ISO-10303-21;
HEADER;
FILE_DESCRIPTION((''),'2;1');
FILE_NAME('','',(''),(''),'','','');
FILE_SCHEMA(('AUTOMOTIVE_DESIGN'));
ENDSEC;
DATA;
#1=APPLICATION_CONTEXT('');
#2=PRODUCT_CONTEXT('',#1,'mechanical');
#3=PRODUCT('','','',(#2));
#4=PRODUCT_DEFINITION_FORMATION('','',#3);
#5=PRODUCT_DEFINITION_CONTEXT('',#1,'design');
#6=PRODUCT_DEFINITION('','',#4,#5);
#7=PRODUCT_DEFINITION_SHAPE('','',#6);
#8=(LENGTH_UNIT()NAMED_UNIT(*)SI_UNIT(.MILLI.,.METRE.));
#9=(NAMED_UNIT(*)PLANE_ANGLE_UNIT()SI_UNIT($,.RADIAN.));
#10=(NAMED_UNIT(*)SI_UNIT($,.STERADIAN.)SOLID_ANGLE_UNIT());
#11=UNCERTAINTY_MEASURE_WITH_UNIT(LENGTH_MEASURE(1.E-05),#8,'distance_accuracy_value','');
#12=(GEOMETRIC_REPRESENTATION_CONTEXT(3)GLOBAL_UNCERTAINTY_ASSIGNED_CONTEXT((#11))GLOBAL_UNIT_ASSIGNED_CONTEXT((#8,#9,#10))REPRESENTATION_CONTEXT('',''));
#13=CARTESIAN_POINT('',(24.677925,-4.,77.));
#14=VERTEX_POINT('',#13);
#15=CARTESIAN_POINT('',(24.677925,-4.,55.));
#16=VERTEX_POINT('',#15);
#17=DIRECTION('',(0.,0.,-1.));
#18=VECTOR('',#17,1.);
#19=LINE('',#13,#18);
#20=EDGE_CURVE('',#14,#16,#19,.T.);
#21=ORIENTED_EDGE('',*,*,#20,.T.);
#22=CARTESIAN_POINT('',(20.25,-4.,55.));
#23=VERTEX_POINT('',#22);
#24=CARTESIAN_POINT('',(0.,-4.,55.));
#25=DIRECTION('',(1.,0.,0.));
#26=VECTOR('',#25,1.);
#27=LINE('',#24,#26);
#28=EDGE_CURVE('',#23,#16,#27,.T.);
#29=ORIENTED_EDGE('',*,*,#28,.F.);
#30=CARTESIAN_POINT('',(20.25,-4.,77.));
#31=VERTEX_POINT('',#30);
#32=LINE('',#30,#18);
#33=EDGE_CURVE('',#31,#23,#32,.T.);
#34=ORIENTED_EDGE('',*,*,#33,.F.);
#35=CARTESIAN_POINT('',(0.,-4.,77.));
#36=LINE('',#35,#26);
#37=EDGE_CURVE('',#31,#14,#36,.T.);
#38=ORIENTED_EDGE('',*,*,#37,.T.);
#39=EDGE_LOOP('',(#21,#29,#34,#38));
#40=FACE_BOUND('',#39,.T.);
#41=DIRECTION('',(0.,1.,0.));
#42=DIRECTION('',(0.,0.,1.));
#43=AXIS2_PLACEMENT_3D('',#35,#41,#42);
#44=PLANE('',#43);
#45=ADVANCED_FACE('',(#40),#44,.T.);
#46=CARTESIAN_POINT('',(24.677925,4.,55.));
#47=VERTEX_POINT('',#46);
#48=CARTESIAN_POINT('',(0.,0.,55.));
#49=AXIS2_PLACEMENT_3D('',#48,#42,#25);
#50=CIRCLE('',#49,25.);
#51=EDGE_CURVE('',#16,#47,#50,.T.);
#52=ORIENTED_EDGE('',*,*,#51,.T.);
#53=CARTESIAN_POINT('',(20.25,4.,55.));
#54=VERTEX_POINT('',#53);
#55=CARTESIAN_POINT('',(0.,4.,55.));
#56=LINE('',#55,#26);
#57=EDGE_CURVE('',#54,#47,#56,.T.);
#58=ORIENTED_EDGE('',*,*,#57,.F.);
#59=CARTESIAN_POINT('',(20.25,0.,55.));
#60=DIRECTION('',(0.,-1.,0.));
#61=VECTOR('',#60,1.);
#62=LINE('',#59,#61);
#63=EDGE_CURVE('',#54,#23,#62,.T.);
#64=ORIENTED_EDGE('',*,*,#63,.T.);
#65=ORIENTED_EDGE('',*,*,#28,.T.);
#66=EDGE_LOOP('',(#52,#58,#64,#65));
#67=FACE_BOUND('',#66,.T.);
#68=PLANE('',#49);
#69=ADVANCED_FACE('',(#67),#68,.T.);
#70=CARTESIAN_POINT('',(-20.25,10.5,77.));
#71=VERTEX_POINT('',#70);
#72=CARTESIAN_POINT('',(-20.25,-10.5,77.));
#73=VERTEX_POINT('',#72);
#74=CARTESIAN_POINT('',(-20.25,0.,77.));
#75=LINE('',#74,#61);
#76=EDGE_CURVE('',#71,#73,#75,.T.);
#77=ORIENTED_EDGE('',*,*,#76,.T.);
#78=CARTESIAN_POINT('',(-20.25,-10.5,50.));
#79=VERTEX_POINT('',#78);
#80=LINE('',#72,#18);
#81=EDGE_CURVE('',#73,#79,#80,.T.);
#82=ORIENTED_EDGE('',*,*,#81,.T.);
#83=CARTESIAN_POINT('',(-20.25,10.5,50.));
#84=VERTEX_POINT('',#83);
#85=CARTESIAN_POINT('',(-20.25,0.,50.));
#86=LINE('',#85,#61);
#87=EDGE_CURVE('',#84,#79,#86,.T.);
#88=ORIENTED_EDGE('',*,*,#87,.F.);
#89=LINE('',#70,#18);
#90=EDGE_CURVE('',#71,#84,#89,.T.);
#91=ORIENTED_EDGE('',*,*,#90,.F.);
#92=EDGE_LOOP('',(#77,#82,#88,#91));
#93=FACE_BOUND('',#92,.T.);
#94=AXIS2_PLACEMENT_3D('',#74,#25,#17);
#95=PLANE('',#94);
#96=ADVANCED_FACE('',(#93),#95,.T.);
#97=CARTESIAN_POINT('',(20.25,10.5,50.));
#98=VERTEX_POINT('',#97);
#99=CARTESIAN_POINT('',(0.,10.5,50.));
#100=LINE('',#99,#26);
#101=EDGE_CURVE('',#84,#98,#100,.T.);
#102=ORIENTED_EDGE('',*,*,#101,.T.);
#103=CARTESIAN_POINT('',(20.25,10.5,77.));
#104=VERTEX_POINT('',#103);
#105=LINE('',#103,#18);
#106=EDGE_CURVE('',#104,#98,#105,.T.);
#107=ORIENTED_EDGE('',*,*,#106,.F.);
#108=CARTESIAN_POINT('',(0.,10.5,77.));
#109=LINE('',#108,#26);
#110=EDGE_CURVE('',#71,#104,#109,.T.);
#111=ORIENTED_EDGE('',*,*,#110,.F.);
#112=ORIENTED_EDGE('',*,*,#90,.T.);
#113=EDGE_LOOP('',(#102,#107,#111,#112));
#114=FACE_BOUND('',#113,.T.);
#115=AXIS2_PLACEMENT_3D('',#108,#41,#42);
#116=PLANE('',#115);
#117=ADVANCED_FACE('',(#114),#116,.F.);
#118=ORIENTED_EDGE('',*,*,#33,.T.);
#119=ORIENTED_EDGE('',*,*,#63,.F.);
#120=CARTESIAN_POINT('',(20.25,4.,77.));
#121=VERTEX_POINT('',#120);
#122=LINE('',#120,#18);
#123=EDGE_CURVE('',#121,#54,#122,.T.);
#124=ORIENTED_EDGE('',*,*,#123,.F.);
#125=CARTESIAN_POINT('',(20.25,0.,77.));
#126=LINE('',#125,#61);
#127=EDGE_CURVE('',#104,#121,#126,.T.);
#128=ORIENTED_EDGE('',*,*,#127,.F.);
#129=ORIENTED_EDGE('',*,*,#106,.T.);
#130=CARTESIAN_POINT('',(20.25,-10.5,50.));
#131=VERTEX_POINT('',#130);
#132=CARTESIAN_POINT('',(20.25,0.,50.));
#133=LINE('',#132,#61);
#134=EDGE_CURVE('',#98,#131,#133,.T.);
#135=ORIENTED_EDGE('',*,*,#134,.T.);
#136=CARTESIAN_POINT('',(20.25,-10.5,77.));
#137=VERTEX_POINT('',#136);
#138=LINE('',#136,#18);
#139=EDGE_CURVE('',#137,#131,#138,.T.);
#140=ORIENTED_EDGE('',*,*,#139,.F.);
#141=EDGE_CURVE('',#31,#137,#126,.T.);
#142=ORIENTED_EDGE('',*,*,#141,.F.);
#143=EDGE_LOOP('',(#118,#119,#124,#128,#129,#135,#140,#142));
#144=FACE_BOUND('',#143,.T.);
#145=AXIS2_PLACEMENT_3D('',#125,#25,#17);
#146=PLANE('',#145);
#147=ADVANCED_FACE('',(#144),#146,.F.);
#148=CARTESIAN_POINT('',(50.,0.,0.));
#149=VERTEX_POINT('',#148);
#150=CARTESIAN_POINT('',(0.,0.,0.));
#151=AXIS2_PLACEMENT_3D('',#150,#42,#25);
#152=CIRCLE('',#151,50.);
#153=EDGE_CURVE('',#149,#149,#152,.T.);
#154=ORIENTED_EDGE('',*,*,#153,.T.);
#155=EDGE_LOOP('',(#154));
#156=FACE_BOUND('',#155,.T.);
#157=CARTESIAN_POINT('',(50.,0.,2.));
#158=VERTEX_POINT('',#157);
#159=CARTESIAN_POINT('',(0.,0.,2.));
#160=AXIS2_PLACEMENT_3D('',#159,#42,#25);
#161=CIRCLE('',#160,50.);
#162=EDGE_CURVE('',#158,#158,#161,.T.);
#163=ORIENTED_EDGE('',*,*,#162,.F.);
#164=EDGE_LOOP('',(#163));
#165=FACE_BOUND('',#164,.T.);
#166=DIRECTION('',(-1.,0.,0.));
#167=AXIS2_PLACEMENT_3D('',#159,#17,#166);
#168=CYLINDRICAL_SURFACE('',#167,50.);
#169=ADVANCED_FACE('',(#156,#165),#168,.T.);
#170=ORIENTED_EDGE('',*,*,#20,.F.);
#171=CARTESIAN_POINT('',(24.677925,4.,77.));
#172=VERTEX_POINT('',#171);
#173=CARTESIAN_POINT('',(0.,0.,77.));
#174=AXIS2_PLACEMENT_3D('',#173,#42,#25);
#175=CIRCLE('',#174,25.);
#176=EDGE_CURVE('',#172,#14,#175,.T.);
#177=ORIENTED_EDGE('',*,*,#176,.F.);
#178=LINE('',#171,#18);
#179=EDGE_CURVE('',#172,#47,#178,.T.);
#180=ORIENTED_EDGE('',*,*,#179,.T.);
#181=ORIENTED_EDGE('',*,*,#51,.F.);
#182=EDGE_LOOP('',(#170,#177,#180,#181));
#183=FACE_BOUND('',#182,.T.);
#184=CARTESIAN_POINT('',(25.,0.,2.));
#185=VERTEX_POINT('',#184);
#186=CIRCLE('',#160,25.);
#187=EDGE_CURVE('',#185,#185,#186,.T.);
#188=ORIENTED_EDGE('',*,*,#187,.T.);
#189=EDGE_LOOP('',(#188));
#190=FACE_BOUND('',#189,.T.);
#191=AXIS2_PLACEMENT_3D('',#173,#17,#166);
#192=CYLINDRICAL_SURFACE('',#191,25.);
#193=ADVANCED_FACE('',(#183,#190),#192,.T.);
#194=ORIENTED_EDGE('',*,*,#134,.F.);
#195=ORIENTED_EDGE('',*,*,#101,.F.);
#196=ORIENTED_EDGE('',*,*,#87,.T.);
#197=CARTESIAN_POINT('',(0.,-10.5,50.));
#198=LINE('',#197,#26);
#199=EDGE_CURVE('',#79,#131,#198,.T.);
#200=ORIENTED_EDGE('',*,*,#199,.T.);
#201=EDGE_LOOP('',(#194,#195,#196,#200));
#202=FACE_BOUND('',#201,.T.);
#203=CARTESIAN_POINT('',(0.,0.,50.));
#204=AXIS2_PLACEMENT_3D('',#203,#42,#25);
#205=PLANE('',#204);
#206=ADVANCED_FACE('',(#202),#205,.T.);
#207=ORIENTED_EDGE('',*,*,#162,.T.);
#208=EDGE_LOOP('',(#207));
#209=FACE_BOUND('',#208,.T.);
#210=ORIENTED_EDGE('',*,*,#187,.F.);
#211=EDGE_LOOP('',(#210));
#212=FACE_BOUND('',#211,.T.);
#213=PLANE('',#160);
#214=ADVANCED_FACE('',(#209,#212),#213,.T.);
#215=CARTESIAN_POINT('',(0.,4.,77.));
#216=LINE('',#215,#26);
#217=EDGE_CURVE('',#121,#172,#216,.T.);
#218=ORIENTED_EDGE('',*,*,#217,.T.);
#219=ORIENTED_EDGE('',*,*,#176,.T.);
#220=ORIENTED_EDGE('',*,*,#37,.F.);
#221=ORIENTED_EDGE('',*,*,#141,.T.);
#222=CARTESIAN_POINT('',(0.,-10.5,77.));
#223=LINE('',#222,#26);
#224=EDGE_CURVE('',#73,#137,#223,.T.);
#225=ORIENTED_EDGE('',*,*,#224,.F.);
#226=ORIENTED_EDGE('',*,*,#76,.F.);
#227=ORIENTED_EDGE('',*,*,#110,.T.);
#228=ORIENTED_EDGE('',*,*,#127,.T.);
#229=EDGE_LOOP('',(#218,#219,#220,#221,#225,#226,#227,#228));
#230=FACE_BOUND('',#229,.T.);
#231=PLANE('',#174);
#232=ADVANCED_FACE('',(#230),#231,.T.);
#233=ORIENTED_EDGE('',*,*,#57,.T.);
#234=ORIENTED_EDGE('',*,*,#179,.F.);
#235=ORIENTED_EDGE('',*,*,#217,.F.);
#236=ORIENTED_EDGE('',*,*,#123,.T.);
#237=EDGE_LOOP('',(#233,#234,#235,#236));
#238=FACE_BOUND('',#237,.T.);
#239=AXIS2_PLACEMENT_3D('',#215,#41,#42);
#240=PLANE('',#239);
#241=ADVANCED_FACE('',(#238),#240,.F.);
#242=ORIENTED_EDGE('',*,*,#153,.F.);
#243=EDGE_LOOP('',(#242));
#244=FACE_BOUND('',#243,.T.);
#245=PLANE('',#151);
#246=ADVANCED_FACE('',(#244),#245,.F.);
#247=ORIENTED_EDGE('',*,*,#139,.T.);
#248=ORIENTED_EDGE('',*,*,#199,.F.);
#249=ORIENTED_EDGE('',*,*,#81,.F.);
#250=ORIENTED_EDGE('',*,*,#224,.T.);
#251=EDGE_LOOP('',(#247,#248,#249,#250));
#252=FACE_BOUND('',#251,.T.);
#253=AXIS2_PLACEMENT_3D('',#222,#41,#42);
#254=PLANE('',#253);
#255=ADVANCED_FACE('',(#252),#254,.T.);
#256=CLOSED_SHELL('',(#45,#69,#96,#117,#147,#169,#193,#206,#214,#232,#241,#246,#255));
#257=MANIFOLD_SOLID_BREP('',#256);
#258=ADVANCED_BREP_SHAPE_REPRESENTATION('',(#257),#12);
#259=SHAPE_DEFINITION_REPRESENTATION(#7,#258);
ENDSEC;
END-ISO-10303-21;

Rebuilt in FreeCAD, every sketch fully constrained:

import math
import FreeCAD as App
import Part
import Sketcher
from FreeCAD import Vector

doc = App.newDocument("Part")
body = doc.addObject("PartDesign::Body", "Body")

# Sketch on XY plane
sketch1 = body.newObject("Sketcher::SketchObject", "Sketch")
sketch1.AttachmentSupport = (doc.getObject("XY_Plane"), [""])
sketch1.MapMode = "FlatFace"
sketch1.addGeometry([
    Part.Circle(Vector(0, 0, 0), Vector(0, 0, 1), 50),
    Part.ArcOfCircle(Part.Circle(Vector(0, 0, 0), Vector(0, 0, 1), 25), math.radians(9), math.radians(351)),
    Part.ArcOfCircle(Part.Circle(Vector(0, 0, 0), Vector(0, 0, 1), 25), math.radians(0), math.radians(9.21)),
    Part.ArcOfCircle(Part.Circle(Vector(0, 0, 0), Vector(0, 0, 1), 25), math.radians(-9.21), math.radians(0)),
], False)
sketch1.addConstraint([
    Sketcher.Constraint("Tangent", 1, 1, 2, 2),
    Sketcher.Constraint("Tangent", 2, 1, 3, 2),
    Sketcher.Constraint("Tangent", 3, 1, 1, 2),
    Sketcher.Constraint("Coincident", 0, 3, -1, 1),
    Sketcher.Constraint("Coincident", 1, 3, -1, 1),
    Sketcher.Constraint("PointOnObject", 2, 1, -1),
    Sketcher.Constraint("Vertical", 1, 1, 3, 1),
    Sketcher.Constraint("Diameter", 0, 100.0),
    Sketcher.Constraint("Radius", 1, 25.0),
    Sketcher.Constraint("DistanceY", -1, 1, 1, 1, 4.0),
])
pad1 = body.newObject("PartDesign::Pad", "Pad")
pad1.Profile = sketch1
pad1.Length = 2
body2 = doc.addObject("PartDesign::Body", "Body001")

# Sketch on XY plane
sketch2 = body2.newObject("Sketcher::SketchObject", "Sketch001")
sketch2.AttachmentSupport = (doc.getObject("XY_Plane001"), [""])
sketch2.MapMode = "FlatFace"
sketch2.addGeometry([
    Part.LineSegment(Vector(20, 10, 0), Vector(-20, 10, 0)),
    Part.LineSegment(Vector(-20, 10, 0), Vector(-20, -10, 0)),
    Part.LineSegment(Vector(-20, -10, 0), Vector(20, -10, 0)),
    Part.LineSegment(Vector(20, -10, 0), Vector(20, 10, 0)),
], False)
sketch2.addConstraint([
    Sketcher.Constraint("Coincident", 0, 2, 1, 1),
    Sketcher.Constraint("Coincident", 1, 2, 2, 1),
    Sketcher.Constraint("Coincident", 2, 2, 3, 1),
    Sketcher.Constraint("Coincident", 3, 2, 0, 1),
    Sketcher.Constraint("Horizontal", 0),
    Sketcher.Constraint("Vertical", 1),
    Sketcher.Constraint("Horizontal", 2),
    Sketcher.Constraint("Vertical", 3),
    Sketcher.Constraint("Symmetric", 0, 2, 2, 2, -1, 1),
    Sketcher.Constraint("DistanceY", 1, 2, 1, 1, 21.0),
    Sketcher.Constraint("DistanceX", 0, 2, 0, 1, 40.5),
])
pad2 = body2.newObject("PartDesign::Pad", "Pad001")
pad2.Profile = sketch2
pad2.Length = 50
body.AllowCompound = True
doc.recompute()

boolean = body.newObject("PartDesign::Boolean", "Boolean")
boolean.Type = "Fuse"
boolean.addObjects([body2])

# Sketch on XY plane
sketch3 = body.newObject("Sketcher::SketchObject", "Sketch002")
sketch3.AttachmentSupport = (doc.getObject("XY_Plane"), [""])
sketch3.MapMode = "FlatFace"
sketch3.addGeometry([
    Part.LineSegment(Vector(-20.2, -10.5, 0), Vector(-20.2, 10.5, 0)),  # 0
    Part.LineSegment(Vector(-20.2, 10.5, 0), Vector(20.2, 10.5, 0)),  # 1
    Part.LineSegment(Vector(20.2, 10.5, 0), Vector(20.2, 4, 0)),  # 2
    Part.LineSegment(Vector(20.2, 4, 0), Vector(24.7, 4, 0)),  # 3
    Part.ArcOfCircle(Part.Circle(Vector(0, 0, 0), Vector(0, 0, 1), 25), math.radians(9), math.radians(351)),  # 4
    Part.LineSegment(Vector(24.7, -4, 0), Vector(20.2, -4, 0)),  # 5
    Part.LineSegment(Vector(20.2, -4, 0), Vector(20.2, -10.5, 0)),  # 6
    Part.LineSegment(Vector(20.2, -10.5, 0), Vector(-20.2, -10.5, 0)),  # 7
], False)
sketch3.addConstraint([
    Sketcher.Constraint("Coincident", 0, 2, 1, 1),
    Sketcher.Constraint("Coincident", 1, 2, 2, 1),
    Sketcher.Constraint("Coincident", 2, 2, 3, 1),
    Sketcher.Constraint("Coincident", 3, 2, 4, 1),
    Sketcher.Constraint("Coincident", 4, 2, 5, 1),
    Sketcher.Constraint("Coincident", 5, 2, 6, 1),
    Sketcher.Constraint("Coincident", 6, 2, 7, 1),
    Sketcher.Constraint("Coincident", 7, 2, 0, 1),
    Sketcher.Constraint("Vertical", 0),
    Sketcher.Constraint("Horizontal", 1),
    Sketcher.Constraint("Vertical", 2),
    Sketcher.Constraint("Horizontal", 3),
    Sketcher.Constraint("Horizontal", 5),
    Sketcher.Constraint("Vertical", 6),
    Sketcher.Constraint("Horizontal", 7),
    Sketcher.Constraint("Coincident", 4, 3, -1, 1),
    Sketcher.Constraint("Symmetric", 0, 2, 6, 2, -1, 1),
    Sketcher.Constraint("Symmetric", 2, 2, 5, 2, -1),
    Sketcher.Constraint("Radius", 4, 25.0),
    Sketcher.Constraint("DistanceY", 0, 1, 0, 2, 21.0),
    Sketcher.Constraint("DistanceX", 1, 1, 1, 2, 40.5),
    Sketcher.Constraint("DistanceY", 2, 2, 2, 1, 6.5),
])
pad3 = body.newObject("PartDesign::Pad", "Pad002")
pad3.Profile = sketch3
pad3.Length = 77

# Sketch on XY plane
sketch4 = body.newObject("Sketcher::SketchObject", "Sketch003")
sketch4.AttachmentSupport = (doc.getObject("XY_Plane"), [""])
sketch4.MapMode = "FlatFace"
sketch4.addGeometry([
    Part.LineSegment(Vector(24.7, 4, 0), Vector(20.2, 4, 0)),  # 0
    Part.LineSegment(Vector(20.2, 4, 0), Vector(20.2, -4, 0)),  # 1
    Part.LineSegment(Vector(20.2, -4, 0), Vector(24.7, -4, 0)),  # 2
    Part.ArcOfCircle(Part.Circle(Vector(0, 0, 0), Vector(0, 0, 1), 25), math.radians(-9.21), math.radians(0)),  # 3
    Part.ArcOfCircle(Part.Circle(Vector(0, 0, 0), Vector(0, 0, 1), 25), math.radians(0), math.radians(9.21)),  # 4
], False)
sketch4.addConstraint([
    Sketcher.Constraint("Coincident", 0, 2, 1, 1),
    Sketcher.Constraint("Coincident", 1, 2, 2, 1),
    Sketcher.Constraint("Coincident", 2, 2, 3, 1),
    Sketcher.Constraint("Tangent", 3, 2, 4, 1),
    Sketcher.Constraint("Coincident", 4, 2, 0, 1),
    Sketcher.Constraint("Horizontal", 0),
    Sketcher.Constraint("Vertical", 1),
    Sketcher.Constraint("Horizontal", 2),
    Sketcher.Constraint("Coincident", 3, 3, -1, 1),
    Sketcher.Constraint("Equal", 3, 4),
    Sketcher.Constraint("PointOnObject", 3, 2, -1),
    Sketcher.Constraint("Vertical", 2, 2, 4, 2),
    Sketcher.Constraint("Radius", 3, 25.0),
    Sketcher.Constraint("DistanceY", 1, 2, 1, 1, 8.0),
    Sketcher.Constraint("DistanceX", -1, 1, 0, 2, 20.25),
])
pad4 = body.newObject("PartDesign::Pad", "Pad003")
pad4.Profile = sketch4
pad4.Length = 55

doc.recompute()
